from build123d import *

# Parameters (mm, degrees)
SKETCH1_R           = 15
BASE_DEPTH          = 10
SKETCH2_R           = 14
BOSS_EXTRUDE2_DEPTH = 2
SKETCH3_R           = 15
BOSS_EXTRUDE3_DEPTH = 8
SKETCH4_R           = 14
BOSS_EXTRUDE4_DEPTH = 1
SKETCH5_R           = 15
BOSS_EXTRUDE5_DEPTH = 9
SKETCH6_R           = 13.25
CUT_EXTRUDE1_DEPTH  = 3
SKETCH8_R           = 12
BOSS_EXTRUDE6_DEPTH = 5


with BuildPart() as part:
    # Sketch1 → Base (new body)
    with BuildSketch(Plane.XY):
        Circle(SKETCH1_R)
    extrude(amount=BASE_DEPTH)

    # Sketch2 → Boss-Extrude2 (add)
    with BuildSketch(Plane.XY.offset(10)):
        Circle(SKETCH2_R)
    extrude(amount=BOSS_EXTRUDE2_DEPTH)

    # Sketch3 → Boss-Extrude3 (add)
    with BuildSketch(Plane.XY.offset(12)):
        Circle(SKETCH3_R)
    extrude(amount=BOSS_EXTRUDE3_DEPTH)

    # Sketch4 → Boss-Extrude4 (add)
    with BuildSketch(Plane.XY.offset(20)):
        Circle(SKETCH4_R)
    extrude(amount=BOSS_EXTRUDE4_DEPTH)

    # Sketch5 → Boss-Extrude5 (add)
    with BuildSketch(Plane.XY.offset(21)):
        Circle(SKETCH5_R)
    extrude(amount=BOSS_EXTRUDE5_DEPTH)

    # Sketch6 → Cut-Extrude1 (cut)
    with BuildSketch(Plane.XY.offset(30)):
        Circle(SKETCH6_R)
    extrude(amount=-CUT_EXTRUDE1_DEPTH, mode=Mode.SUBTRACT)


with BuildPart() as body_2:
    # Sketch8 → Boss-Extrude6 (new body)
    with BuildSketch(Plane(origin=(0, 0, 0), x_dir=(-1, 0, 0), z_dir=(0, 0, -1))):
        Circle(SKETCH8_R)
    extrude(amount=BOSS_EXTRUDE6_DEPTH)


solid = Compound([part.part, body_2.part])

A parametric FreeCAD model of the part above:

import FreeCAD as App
import Part
import Sketcher

V = App.Vector
Q = App.Units.Quantity

doc = App.newDocument("Part")
params = doc.addObject("Spreadsheet::Sheet", "Params")
for row, (alias, value) in enumerate([
    ("sketch1_diameter", "30 mm"),
    ("pad1_length", "10 mm"),
    ("sketch2_diameter", "28 mm"),
    ("pad2_length", "2 mm"),
    ("sketch3_diameter", "30 mm"),
    ("pad3_length", "8 mm"),
    ("sketch4_diameter", "28 mm"),
    ("pad4_length", "1 mm"),
    ("sketch5_diameter", "30 mm"),
    ("pad5_length", "9 mm"),
    ("sketch6_diameter", "26.5 mm"),
    ("pocket1_length", "3 mm"),
    ("sketch7_diameter", "24 mm"),
    ("pad6_length", "5 mm"),
], start=1):
    params.set(f"A{row}", alias)
    params.set(f"B{row}", "=" + value)
    params.setAlias(f"B{row}", alias)

body = doc.addObject("PartDesign::Body", "Body")

# Sketch on XY plane
sketch1 = doc.addObject("Sketcher::SketchObject", "Sketch")
body.addObject(sketch1)
sketch1.AttachmentSupport = (doc.XY_Plane, [""])
sketch1.MapMode = "FlatFace"
sketch1.addGeometry(Part.Circle(V(0, 0, 0), V(0, 0, 1), 15), False)
sketch1.addConstraint([
    Sketcher.Constraint("Coincident", 0, 3, -1, 1),
    Sketcher.Constraint("Diameter", 0, Q("30 mm")),
])
sketch1.setExpression("Constraints[1]", "Params.sketch1_diameter")
pad1 = doc.addObject("PartDesign::Pad", "Pad")
body.addObject(pad1)
pad1.Profile = sketch1
pad1.setExpression("Length", "Params.pad1_length")

# Sketch on XY plane
sketch2 = doc.addObject("Sketcher::SketchObject", "Sketch001")
body.addObject(sketch2)
sketch2.AttachmentSupport = (doc.XY_Plane, [""])
sketch2.MapMode = "FlatFace"
sketch2.AttachmentOffset = App.Placement(V(0, 0, 10), App.Rotation())
sketch2.addGeometry(Part.Circle(V(0, 0, 0), V(0, 0, 1), 14), False)
sketch2.addConstraint([
    Sketcher.Constraint("Coincident", 0, 3, -1, 1),
    Sketcher.Constraint("Diameter", 0, Q("28 mm")),
])
sketch2.setExpression("Constraints[1]", "Params.sketch2_diameter")
pad2 = doc.addObject("PartDesign::Pad", "Pad001")
body.addObject(pad2)
pad2.Profile = sketch2
pad2.setExpression("Length", "Params.pad2_length")

# Sketch on XY plane
sketch3 = doc.addObject("Sketcher::SketchObject", "Sketch002")
body.addObject(sketch3)
sketch3.AttachmentSupport = (doc.XY_Plane, [""])
sketch3.MapMode = "FlatFace"
sketch3.AttachmentOffset = App.Placement(V(0, 0, 12), App.Rotation())
sketch3.addGeometry(Part.Circle(V(0, 0, 0), V(0, 0, 1), 15), False)
sketch3.addConstraint([
    Sketcher.Constraint("Coincident", 0, 3, -1, 1),
    Sketcher.Constraint("Diameter", 0, Q("30 mm")),
])
sketch3.setExpression("Constraints[1]", "Params.sketch3_diameter")
pad3 = doc.addObject("PartDesign::Pad", "Pad002")
body.addObject(pad3)
pad3.Profile = sketch3
pad3.setExpression("Length", "Params.pad3_length")

# Sketch on XY plane
sketch4 = doc.addObject("Sketcher::SketchObject", "Sketch003")
body.addObject(sketch4)
sketch4.AttachmentSupport = (doc.XY_Plane, [""])
sketch4.MapMode = "FlatFace"
sketch4.AttachmentOffset = App.Placement(V(0, 0, 20), App.Rotation())
sketch4.addGeometry(Part.Circle(V(0, 0, 0), V(0, 0, 1), 14), False)
sketch4.addConstraint([
    Sketcher.Constraint("Coincident", 0, 3, -1, 1),
    Sketcher.Constraint("Diameter", 0, Q("28 mm")),
])
sketch4.setExpression("Constraints[1]", "Params.sketch4_diameter")
pad4 = doc.addObject("PartDesign::Pad", "Pad003")
body.addObject(pad4)
pad4.Profile = sketch4
pad4.setExpression("Length", "Params.pad4_length")

# Sketch on XY plane
sketch5 = doc.addObject("Sketcher::SketchObject", "Sketch004")
body.addObject(sketch5)
sketch5.AttachmentSupport = (doc.XY_Plane, [""])
sketch5.MapMode = "FlatFace"
sketch5.AttachmentOffset = App.Placement(V(0, 0, 21), App.Rotation())
sketch5.addGeometry(Part.Circle(V(0, 0, 0), V(0, 0, 1), 15), False)
sketch5.addConstraint([
    Sketcher.Constraint("Coincident", 0, 3, -1, 1),
    Sketcher.Constraint("Diameter", 0, Q("30 mm")),
])
sketch5.setExpression("Constraints[1]", "Params.sketch5_diameter")
pad5 = doc.addObject("PartDesign::Pad", "Pad004")
body.addObject(pad5)
pad5.Profile = sketch5
pad5.setExpression("Length", "Params.pad5_length")

# Sketch on XY plane
sketch6 = doc.addObject("Sketcher::SketchObject", "Sketch005")
body.addObject(sketch6)
sketch6.AttachmentSupport = (doc.XY_Plane, [""])
sketch6.MapMode = "FlatFace"
sketch6.AttachmentOffset = App.Placement(V(0, 0, 30), App.Rotation())
sketch6.addGeometry(Part.Circle(V(0, 0, 0), V(0, 0, 1), 13), False)
sketch6.addConstraint([
    Sketcher.Constraint("Coincident", 0, 3, -1, 1),
    Sketcher.Constraint("Diameter", 0, Q("26.5 mm")),
])
sketch6.setExpression("Constraints[1]", "Params.sketch6_diameter")
pocket1 = doc.addObject("PartDesign::Pocket", "Pocket")
body.addObject(pocket1)
pocket1.Profile = sketch6
pocket1.setExpression("Length", "Params.pocket1_length")
body2 = doc.addObject("PartDesign::Body", "Body001")

# Sketch on XY plane
sketch7 = doc.addObject("Sketcher::SketchObject", "Sketch006")
body2.addObject(sketch7)
sketch7.AttachmentSupport = (doc.getObject("XY_Plane001"), [""])
sketch7.MapMode = "FlatFace"
sketch7.addGeometry(Part.Circle(V(0, 0, 0), V(0, 0, 1), 12), False)
sketch7.addConstraint([
    Sketcher.Constraint("Coincident", 0, 3, -1, 1),
    Sketcher.Constraint("Diameter", 0, Q("24 mm")),
])
sketch7.setExpression("Constraints[1]", "Params.sketch7_diameter")
pad6 = doc.addObject("PartDesign::Pad", "Pad005")
body2.addObject(pad6)
pad6.Profile = sketch7
pad6.setExpression("Length", "Params.pad6_length")
pad6.Reversed = True

doc.recompute()
